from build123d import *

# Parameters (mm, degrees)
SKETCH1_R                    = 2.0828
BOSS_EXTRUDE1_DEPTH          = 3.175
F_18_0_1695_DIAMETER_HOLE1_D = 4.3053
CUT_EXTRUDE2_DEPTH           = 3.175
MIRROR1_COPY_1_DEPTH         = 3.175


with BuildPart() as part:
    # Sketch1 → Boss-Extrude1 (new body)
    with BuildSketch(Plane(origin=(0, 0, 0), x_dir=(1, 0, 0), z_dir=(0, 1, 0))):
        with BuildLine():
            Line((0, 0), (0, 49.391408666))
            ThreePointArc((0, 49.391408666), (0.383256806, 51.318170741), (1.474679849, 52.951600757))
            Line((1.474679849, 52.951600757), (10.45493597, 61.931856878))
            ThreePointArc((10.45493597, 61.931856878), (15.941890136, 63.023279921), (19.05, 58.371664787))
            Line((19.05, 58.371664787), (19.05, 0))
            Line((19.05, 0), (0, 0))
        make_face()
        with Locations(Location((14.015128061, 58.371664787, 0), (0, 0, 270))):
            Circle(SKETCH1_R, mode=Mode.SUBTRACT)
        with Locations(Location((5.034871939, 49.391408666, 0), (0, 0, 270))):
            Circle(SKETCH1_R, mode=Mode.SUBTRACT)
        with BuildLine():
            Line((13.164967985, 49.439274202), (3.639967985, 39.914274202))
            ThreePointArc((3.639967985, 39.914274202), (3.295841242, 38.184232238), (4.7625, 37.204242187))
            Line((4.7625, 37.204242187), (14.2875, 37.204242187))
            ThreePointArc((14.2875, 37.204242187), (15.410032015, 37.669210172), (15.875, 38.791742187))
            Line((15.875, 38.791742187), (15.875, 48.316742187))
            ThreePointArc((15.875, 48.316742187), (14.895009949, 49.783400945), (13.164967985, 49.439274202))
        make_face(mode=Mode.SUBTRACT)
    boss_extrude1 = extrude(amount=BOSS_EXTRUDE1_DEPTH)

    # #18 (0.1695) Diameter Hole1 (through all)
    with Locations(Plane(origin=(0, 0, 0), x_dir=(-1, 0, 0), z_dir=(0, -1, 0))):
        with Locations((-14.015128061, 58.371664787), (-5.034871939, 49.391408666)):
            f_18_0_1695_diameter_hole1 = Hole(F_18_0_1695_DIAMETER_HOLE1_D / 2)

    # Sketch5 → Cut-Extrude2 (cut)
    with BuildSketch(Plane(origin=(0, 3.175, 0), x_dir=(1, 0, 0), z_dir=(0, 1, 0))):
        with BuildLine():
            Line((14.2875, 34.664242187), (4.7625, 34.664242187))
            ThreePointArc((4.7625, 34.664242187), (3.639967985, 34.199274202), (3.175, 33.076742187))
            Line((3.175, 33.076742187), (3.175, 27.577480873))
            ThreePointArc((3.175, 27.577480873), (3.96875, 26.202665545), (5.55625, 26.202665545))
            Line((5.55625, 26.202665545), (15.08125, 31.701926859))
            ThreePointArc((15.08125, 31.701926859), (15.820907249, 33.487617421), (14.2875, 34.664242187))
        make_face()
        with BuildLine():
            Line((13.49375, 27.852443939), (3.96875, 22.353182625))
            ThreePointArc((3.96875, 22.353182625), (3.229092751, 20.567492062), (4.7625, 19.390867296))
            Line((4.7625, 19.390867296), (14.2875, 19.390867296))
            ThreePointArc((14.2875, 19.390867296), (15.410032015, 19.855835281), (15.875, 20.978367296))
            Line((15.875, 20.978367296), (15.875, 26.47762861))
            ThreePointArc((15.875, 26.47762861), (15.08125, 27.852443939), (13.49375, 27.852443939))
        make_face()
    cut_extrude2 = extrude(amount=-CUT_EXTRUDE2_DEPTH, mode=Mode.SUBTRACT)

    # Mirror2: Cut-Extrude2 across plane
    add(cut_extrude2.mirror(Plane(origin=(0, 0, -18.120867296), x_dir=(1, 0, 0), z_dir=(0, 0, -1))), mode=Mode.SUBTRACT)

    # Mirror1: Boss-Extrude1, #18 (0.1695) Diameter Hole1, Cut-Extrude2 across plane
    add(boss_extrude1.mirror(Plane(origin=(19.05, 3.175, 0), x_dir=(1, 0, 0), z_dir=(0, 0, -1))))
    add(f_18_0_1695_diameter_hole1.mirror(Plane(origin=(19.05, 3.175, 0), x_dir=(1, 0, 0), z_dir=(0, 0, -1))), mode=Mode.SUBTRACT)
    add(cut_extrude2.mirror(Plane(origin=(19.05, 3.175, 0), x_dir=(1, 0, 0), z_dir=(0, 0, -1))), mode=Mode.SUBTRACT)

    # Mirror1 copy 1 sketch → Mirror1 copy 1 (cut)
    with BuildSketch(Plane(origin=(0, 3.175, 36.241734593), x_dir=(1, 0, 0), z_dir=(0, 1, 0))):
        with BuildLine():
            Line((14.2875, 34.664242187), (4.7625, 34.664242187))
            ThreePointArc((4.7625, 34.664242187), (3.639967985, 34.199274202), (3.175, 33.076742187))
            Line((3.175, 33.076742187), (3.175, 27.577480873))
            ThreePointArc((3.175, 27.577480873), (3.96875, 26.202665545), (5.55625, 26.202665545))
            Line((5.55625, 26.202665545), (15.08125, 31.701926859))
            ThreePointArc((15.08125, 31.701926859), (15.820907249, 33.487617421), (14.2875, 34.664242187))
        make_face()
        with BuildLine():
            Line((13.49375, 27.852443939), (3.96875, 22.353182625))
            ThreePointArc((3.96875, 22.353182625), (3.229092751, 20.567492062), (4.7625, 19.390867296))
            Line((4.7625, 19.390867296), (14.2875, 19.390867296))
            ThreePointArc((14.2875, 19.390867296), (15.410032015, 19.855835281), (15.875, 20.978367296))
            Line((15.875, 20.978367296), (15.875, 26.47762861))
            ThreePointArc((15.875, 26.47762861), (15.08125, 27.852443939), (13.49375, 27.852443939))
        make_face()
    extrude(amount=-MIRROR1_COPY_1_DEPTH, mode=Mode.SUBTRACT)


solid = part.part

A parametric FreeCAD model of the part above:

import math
import FreeCAD as App
import Part
import Sketcher

V = App.Vector
Q = App.Units.Quantity

doc = App.newDocument("Part")
body = doc.addObject("PartDesign::Body", "Body")

# Sketch on XZ plane
sketch1 = doc.addObject("Sketcher::SketchObject", "Sketch")
body.addObject(sketch1)
sketch1.AttachmentSupport = (doc.XZ_Plane, [""])
sketch1.MapMode = "FlatFace"
sketch1.addGeometry([
    Part.LineSegment(V(0, -49.4, 0), V(0, 0, 0)),  # 0
    Part.LineSegment(V(0, 0, 0), V(19.1, 0, 0)),  # 1
    Part.LineSegment(V(19.1, 0, 0), V(19.1, -58.4, 0)),  # 2
    Part.ArcOfCircle(Part.Circle(V(14, -58.4, 0), V(0, 0, 1), 5), math.radians(-135), math.radians(0)),  # 3
    Part.LineSegment(V(10.5, -61.9, 0), V(1.5, -53, 0)),  # 4
    Part.ArcOfCircle(Part.Circle(V(5, -49.4, 0), V(0, 0, 1), 5), math.radians(-180), math.radians(-135)),  # 5
    Part.ArcOfCircle(Part.Circle(V(14.3, -48.3, 0), V(0, 0, 1), 1.6), math.radians(-135), math.radians(0)),  # 6
    Part.LineSegment(V(15.9, -48.3, 0), V(15.9, -38.8, 0)),  # 7
    Part.ArcOfCircle(Part.Circle(V(14.3, -38.8, 0), V(0, 0, 1), 1.6), math.radians(0), math.radians(90)),  # 8
    Part.LineSegment(V(14.3, -37.2, 0), V(4.8, -37.2, 0)),  # 9
    Part.ArcOfCircle(Part.Circle(V(4.8, -38.8, 0), V(0, 0, 1), 1.6), math.radians(90), math.radians(225)),  # 10
    Part.LineSegment(V(3.6, -39.9, 0), V(13.2, -49.4, 0)),  # 11
    Part.Circle(V(14, -58.4, 0), V(0, 0, 1), 2.1),  # 12
    Part.Circle(V(5, -49.4, 0), V(0, 0, 1), 2.1),  # 13
], False)
sketch1.addConstraint([
    Sketcher.Constraint("Coincident", 0, 2, 1, 1),
    Sketcher.Constraint("Coincident", 1, 2, 2, 1),
    Sketcher.Constraint("Tangent", 2, 2, 3, 2),
    Sketcher.Constraint("Tangent", 3, 1, 4, 1),
    Sketcher.Constraint("Tangent", 4, 2, 5, 2),
    Sketcher.Constraint("Tangent", 5, 1, 0, 1),
    Sketcher.Constraint("Tangent", 6, 2, 7, 1),
    Sketcher.Constraint("Tangent", 7, 2, 8, 1),
    Sketcher.Constraint("Tangent", 8, 2, 9, 1),
    Sketcher.Constraint("Tangent", 9, 2, 10, 1),
    Sketcher.Constraint("Tangent", 10, 2, 11, 1),
    Sketcher.Constraint("Tangent", 11, 2, 6, 1),
    Sketcher.Constraint("Vertical", 0),
    Sketcher.Constraint("Horizontal", 1),
    Sketcher.Constraint("Vertical", 2),
    Sketcher.Constraint("Vertical", 7),
    Sketcher.Constraint("Horizontal", 9),
    Sketcher.Constraint("Coincident", 0, 2, -1, 1),
    Sketcher.Constraint("Coincident", 12, 3, 3, 3),
    Sketcher.Constraint("Coincident", 13, 3, 5, 3),
    Sketcher.Constraint("Equal", 3, 5),
    Sketcher.Constraint("Equal", 6, 8),
    Sketcher.Constraint("Equal", 8, 10),
    Sketcher.Constraint("Equal", 12, 13),
    Sketcher.Constraint("Parallel", 4, 11),
    Sketcher.Constraint("Equal", 9, 7),
    Sketcher.Constraint("Diameter", 12, Q("0.164 in")),
    Sketcher.Constraint("Radius", 6, Q("0.0625 in")),
    Sketcher.Constraint("Distance", 4, Q("0.5 in")),
    Sketcher.Constraint("DistanceX", 1, 1, 1, 2, Q("0.75 in")),
    Sketcher.Constraint("DistanceX", 9, 2, 9, 1, Q("0.375 in")),
    Sketcher.Constraint("DistanceX", -1, 1, 6, 3, Q("0.5625 in")),
    Sketcher.Constraint("DistanceY", 0, 1, 0, 2, Q("49.391409 mm")),
    Sketcher.Constraint("DistanceY", 4, 2, 6, 3, Q("4.634859 mm")),
])
pad1 = doc.addObject("PartDesign::Pad", "Pad")
body.addObject(pad1)
pad1.Profile = sketch1
pad1.Length = Q("0.125 in")
pad1.Reversed = True

# Sketch on XZ plane
sketch2 = doc.addObject("Sketcher::SketchObject", "Sketch001")
body.addObject(sketch2)
sketch2.AttachmentSupport = (doc.XZ_Plane, [""])
sketch2.MapMode = "FlatFace"
sketch2.addGeometry([
    Part.Circle(V(14, -58.4, 0), V(0, 0, 1), 2.2),
    Part.Circle(V(5, -49.4, 0), V(0, 0, 1), 2.2),
], False)
sketch2.addConstraint([
    Sketcher.Constraint("Equal", 0, 1),
    Sketcher.Constraint("Diameter", 0, Q("0.1695 in")),
    Sketcher.Constraint("DistanceX", -1, 1, 0, 3, Q("14.015128 mm")),
    Sketcher.Constraint("DistanceX", -1, 1, 1, 3, Q("5.034872 mm")),
    Sketcher.Constraint("DistanceY", 1, 3, -1, 1, Q("49.391409 mm")),
    Sketcher.Constraint("DistanceY", 0, 3, -1, 1, Q("58.371665 mm")),
])
doc.recompute()
hole = doc.addObject("PartDesign::Hole", "Hole")
body.addObject(hole)
hole.Profile = sketch2
hole.ThreadType = "None"
hole.Diameter = Q("0.1695 in")
hole.DepthType = "ThroughAll"

# Sketch on XZ plane
sketch3 = doc.addObject("Sketcher::SketchObject", "Sketch002")
body.addObject(sketch3)
sketch3.AttachmentSupport = (doc.XZ_Plane, [""])
sketch3.MapMode = "FlatFace"
sketch3.AttachmentOffset = App.Placement(V(0, 0, -0.125 * 25.4), App.Rotation())
sketch3.addGeometry([
    Part.LineSegment(V(14.3, -34.7, 0), V(4.8, -34.7, 0)),  # 0
    Part.ArcOfCircle(Part.Circle(V(4.8, -33.1, 0), V(0, 0, 1), 1.6), math.radians(180), math.radians(270)),  # 1
    Part.LineSegment(V(3.2, -33.1, 0), V(3.2, -27.6, 0)),  # 2
    Part.ArcOfCircle(Part.Circle(V(4.8, -27.6, 0), V(0, 0, 1), 1.6), math.radians(60), math.radians(180)),  # 3
    Part.LineSegment(V(5.6, -26.2, 0), V(15.1, -31.7, 0)),  # 4
    Part.ArcOfCircle(Part.Circle(V(14.3, -33.1, 0), V(0, 0, 1), 1.6), math.radians(-90), math.radians(60)),  # 5
    Part.LineSegment(V(13.5, -27.9, 0), V(4, -22.4, 0)),  # 6
    Part.ArcOfCircle(Part.Circle(V(4.8, -21, 0), V(0, 0, 1), 1.6), math.radians(90), math.radians(240)),  # 7
    Part.LineSegment(V(4.8, -19.4, 0), V(14.3, -19.4, 0)),  # 8
    Part.ArcOfCircle(Part.Circle(V(14.3, -21, 0), V(0, 0, 1), 1.6), math.radians(0), math.radians(90)),  # 9
    Part.LineSegment(V(15.9, -21, 0), V(15.9, -26.5, 0)),  # 10
    Part.ArcOfCircle(Part.Circle(V(14.3, -26.5, 0), V(0, 0, 1), 1.6), math.radians(-120), math.radians(0)),  # 11
], False)
sketch3.addConstraint([
    Sketcher.Constraint("Tangent", 0, 2, 1, 2),
    Sketcher.Constraint("Tangent", 1, 1, 2, 1),
    Sketcher.Constraint("Tangent", 2, 2, 3, 2),
    Sketcher.Constraint("Tangent", 3, 1, 4, 1),
    Sketcher.Constraint("Tangent", 4, 2, 5, 2),
    Sketcher.Constraint("Tangent", 5, 1, 0, 1),
    Sketcher.Constraint("Tangent", 6, 2, 7, 2),
    Sketcher.Constraint("Tangent", 7, 1, 8, 1),
    Sketcher.Constraint("Tangent", 8, 2, 9, 2),
    Sketcher.Constraint("Tangent", 9, 1, 10, 1),
    Sketcher.Constraint("Tangent", 10, 2, 11, 2),
    Sketcher.Constraint("Tangent", 11, 1, 6, 1),
    Sketcher.Constraint("Horizontal", 0),
    Sketcher.Constraint("Vertical", 2),
    Sketcher.Constraint("Horizontal", 8),
    Sketcher.Constraint("Vertical", 10),
    Sketcher.Constraint("Equal", 1, 3),
    Sketcher.Constraint("Equal", 3, 5),
    Sketcher.Constraint("Equal", 5, 7),
    Sketcher.Constraint("Equal", 7, 9),
    Sketcher.Constraint("Equal", 9, 11),
    Sketcher.Constraint("Parallel", 4, 6),
    Sketcher.Constraint("Vertical", 3, 3, 7, 3),
    Sketcher.Constraint("Vertical", 5, 3, 9, 3),
    Sketcher.Constraint("Angle", 4, Q("-30 deg")),
    Sketcher.Constraint("Radius", 1, Q("0.0625 in")),
    Sketcher.Constraint("DistanceX", 0, 2, 0, 1, Q("0.375 in")),
    Sketcher.Constraint("DistanceX", -1, 1, 1, 3, Q("0.1875 in")),
    Sketcher.Constraint("DistanceY", 3, 1, 7, 3, Q("5.224298 mm")),
    Sketcher.Constraint("DistanceY", 3, 3, -1, 1, Q("27.577481 mm")),
])
pocket1 = doc.addObject("PartDesign::Pocket", "Pocket")
body.addObject(pocket1)
pocket1.Profile = sketch3
pocket1.Length = Q("0.125 in")
pocket1.Reversed = True
doc.recompute()

datumplane = doc.addObject("PartDesign::Plane", "DatumPlane")
body.addObject(datumplane)
datumplane.AttachmentSupport = (doc.XY_Plane, [""])
datumplane.MapMode = "FlatFace"
datumplane.AttachmentOffset = App.Placement(V(0, 0, -18.120867), App.Rotation())
mirrored = doc.addObject("PartDesign::Mirrored", "Mirrored")
body.addObject(mirrored)
mirrored.Originals = [pocket1]
mirrored.MirrorPlane = (datumplane, [""])
body.Tip = mirrored
doc.recompute()

mirrored2 = doc.addObject("PartDesign::Mirrored", "Mirrored001")
body.addObject(mirrored2)
mirrored2.Originals = [pad1, hole, pocket1]
mirrored2.MirrorPlane = (doc.XY_Plane, [""])
body.Tip = mirrored2

# Sketch on XZ plane
sketch4 = doc.addObject("Sketcher::SketchObject", "Sketch003")
body.addObject(sketch4)
sketch4.AttachmentSupport = (doc.XZ_Plane, [""])
sketch4.MapMode = "FlatFace"
sketch4.AttachmentOffset = App.Placement(V(0, 0, -0.125 * 25.4), App.Rotation())
sketch4.addGeometry([
    Part.LineSegment(V(14.3, 1.6, 0), V(4.8, 1.6, 0)),  # 0
    Part.ArcOfCircle(Part.Circle(V(4.8, 3.2, 0), V(0, 0, 1), 1.6), math.radians(180), math.radians(270)),  # 1
    Part.LineSegment(V(3.2, 3.2, 0), V(3.2, 8.7, 0)),  # 2
    Part.ArcOfCircle(Part.Circle(V(4.8, 8.7, 0), V(0, 0, 1), 1.6), math.radians(60), math.radians(180)),  # 3
    Part.LineSegment(V(5.6, 10, 0), V(15.1, 4.5, 0)),  # 4
    Part.ArcOfCircle(Part.Circle(V(14.3, 3.2, 0), V(0, 0, 1), 1.6), math.radians(-90), math.radians(60)),  # 5
    Part.LineSegment(V(13.5, 8.4, 0), V(4, 13.9, 0)),  # 6
    Part.ArcOfCircle(Part.Circle(V(4.8, 15.3, 0), V(0, 0, 1), 1.6), math.radians(90), math.radians(240)),  # 7
    Part.LineSegment(V(4.8, 16.9, 0), V(14.3, 16.9, 0)),  # 8
    Part.ArcOfCircle(Part.Circle(V(14.3, 15.3, 0), V(0, 0, 1), 1.6), math.radians(0), math.radians(90)),  # 9
    Part.LineSegment(V(15.9, 15.3, 0), V(15.9, 9.8, 0)),  # 10
    Part.ArcOfCircle(Part.Circle(V(14.3, 9.8, 0), V(0, 0, 1), 1.6), math.radians(-120), math.radians(0)),  # 11
], False)
sketch4.addConstraint([
    Sketcher.Constraint("Tangent", 0, 2, 1, 2),
    Sketcher.Constraint("Tangent", 1, 1, 2, 1),
    Sketcher.Constraint("Tangent", 2, 2, 3, 2),
    Sketcher.Constraint("Tangent", 3, 1, 4, 1),
    Sketcher.Constraint("Tangent", 4, 2, 5, 2),
    Sketcher.Constraint("Tangent", 5, 1, 0, 1),
    Sketcher.Constraint("Tangent", 6, 2, 7, 2),
    Sketcher.Constraint("Tangent", 7, 1, 8, 1),
    Sketcher.Constraint("Tangent", 8, 2, 9, 2),
    Sketcher.Constraint("Tangent", 9, 1, 10, 1),
    Sketcher.Constraint("Tangent", 10, 2, 11, 2),
    Sketcher.Constraint("Tangent", 11, 1, 6, 1),
    Sketcher.Constraint("Horizontal", 0),
    Sketcher.Constraint("Vertical", 2),
    Sketcher.Constraint("Horizontal", 8),
    Sketcher.Constraint("Vertical", 10),
    Sketcher.Constraint("Equal", 1, 3),
    Sketcher.Constraint("Equal", 3, 5),
    Sketcher.Constraint("Equal", 5, 7),
    Sketcher.Constraint("Equal", 7, 9),
    Sketcher.Constraint("Equal", 9, 11),
    Sketcher.Constraint("Parallel", 4, 6),
    Sketcher.Constraint("Vertical", 3, 3, 7, 3),
    Sketcher.Constraint("Vertical", 5, 3, 9, 3),
    Sketcher.Constraint("Angle", 4, Q("-30 deg")),
    Sketcher.Constraint("Radius", 1, Q("0.0625 in")),
    Sketcher.Constraint("DistanceX", 0, 2, 0, 1, Q("0.375 in")),
    Sketcher.Constraint("DistanceX", -1, 1, 1, 3, Q("0.1875 in")),
    Sketcher.Constraint("DistanceY", 3, 1, 7, 3, Q("5.224298 mm")),
    Sketcher.Constraint("DistanceY", -1, 1, 3, 1, Q("10.039069 mm")),
])
pocket2 = doc.addObject("PartDesign::Pocket", "Pocket001")
body.addObject(pocket2)
pocket2.Profile = sketch4
pocket2.Length = Q("0.125 in")
pocket2.Reversed = True

doc.recompute()
